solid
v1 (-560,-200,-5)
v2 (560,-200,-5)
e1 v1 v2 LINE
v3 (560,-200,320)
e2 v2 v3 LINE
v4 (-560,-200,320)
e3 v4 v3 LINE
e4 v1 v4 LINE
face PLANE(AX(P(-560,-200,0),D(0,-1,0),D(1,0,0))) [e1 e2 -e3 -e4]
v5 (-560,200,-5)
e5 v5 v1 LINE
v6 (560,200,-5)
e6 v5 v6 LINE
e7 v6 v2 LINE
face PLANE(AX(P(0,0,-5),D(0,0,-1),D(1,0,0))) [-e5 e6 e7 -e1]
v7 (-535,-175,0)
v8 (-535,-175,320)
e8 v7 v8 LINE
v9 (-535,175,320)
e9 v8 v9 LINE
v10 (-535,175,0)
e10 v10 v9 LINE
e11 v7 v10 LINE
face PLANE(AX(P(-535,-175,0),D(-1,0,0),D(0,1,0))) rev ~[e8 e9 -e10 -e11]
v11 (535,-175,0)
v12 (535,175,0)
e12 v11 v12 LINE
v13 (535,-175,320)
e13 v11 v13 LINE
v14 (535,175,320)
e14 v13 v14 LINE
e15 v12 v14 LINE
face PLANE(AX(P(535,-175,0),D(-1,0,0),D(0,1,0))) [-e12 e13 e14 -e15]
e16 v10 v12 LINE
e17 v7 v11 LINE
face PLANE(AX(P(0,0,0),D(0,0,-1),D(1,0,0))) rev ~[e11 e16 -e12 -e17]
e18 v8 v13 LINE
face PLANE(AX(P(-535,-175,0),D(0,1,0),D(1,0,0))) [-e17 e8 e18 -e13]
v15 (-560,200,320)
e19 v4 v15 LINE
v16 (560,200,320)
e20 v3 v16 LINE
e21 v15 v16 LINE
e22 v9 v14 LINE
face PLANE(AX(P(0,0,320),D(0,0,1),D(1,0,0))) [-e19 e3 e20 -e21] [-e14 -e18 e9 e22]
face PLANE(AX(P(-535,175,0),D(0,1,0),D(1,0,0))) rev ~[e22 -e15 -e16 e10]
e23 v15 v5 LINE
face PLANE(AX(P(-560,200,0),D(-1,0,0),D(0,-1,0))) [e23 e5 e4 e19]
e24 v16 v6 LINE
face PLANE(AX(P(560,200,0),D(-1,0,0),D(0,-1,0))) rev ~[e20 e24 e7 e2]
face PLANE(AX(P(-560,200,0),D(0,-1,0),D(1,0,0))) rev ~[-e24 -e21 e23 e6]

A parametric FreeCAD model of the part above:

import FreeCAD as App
import Part
import Sketcher

V = App.Vector
Q = App.Units.Quantity


def add_polygon(sketch, points):
    """Adds a closed chain of lines whose ends are joined by coincident constraints."""
    first, n = sketch.GeometryCount, len(points)
    for a, b in zip(points, points[1:] + points[:1]):
        sketch.addGeometry(Part.LineSegment(App.Vector(*a, 0), App.Vector(*b, 0)), False)
    for i in range(n):
        sketch.addConstraint(Sketcher.Constraint("Coincident", first + i, 2, first + (i + 1) % n, 1))

doc = App.newDocument("Part")
body = doc.addObject("PartDesign::Body", "Body")

sketch1 = doc.addObject("Sketcher::SketchObject", "Sketch")
body.addObject(sketch1)
sketch1.AttachmentSupport = (doc.XY_Plane, [""])
sketch1.MapMode = "FlatFace"
add_polygon(sketch1, [(-560, 200), (-560, -200), (560, -200), (560, 200)])
add_polygon(sketch1, [(535, -175), (-535, -175), (-535, 175), (535, 175)])
sketch1.addConstraint([
    Sketcher.Constraint("Vertical", 0),
    Sketcher.Constraint("Horizontal", 1),
    Sketcher.Constraint("Vertical", 2),
    Sketcher.Constraint("Horizontal", 3),
    Sketcher.Constraint("Horizontal", 4),
    Sketcher.Constraint("Vertical", 5),
    Sketcher.Constraint("Horizontal", 6),
    Sketcher.Constraint("Vertical", 7),
    Sketcher.Constraint("Symmetric", 0, 2, 2, 2, -1, 1),
    Sketcher.Constraint("Symmetric", 4, 2, 6, 2, -1, 1),
    Sketcher.Constraint("DistanceX", 1, 1, 1, 2, Q("1120 mm")),
    Sketcher.Constraint("DistanceX", 4, 2, 4, 1, Q("1070 mm")),
    Sketcher.Constraint("DistanceY", 0, 2, 0, 1, Q("400 mm")),
    Sketcher.Constraint("DistanceY", 5, 1, 5, 2, Q("350 mm")),
])
pad1 = doc.addObject("PartDesign::Pad", "Pad")
body.addObject(pad1)
pad1.Profile = sketch1
pad1.Length = 320

sketch2 = doc.addObject("Sketcher::SketchObject", "Sketch001")
body.addObject(sketch2)
sketch2.AttachmentSupport = (doc.XY_Plane, [""])
sketch2.MapMode = "FlatFace"
add_polygon(sketch2, [(-560, -200), (-560, 200), (560, 200), (560, -200)])
sketch2.addConstraint([
    Sketcher.Constraint("Vertical", 0),
    Sketcher.Constraint("Horizontal", 1),
    Sketcher.Constraint("Vertical", 2),
    Sketcher.Constraint("Horizontal", 3),
    Sketcher.Constraint("Symmetric", 0, 2, 2, 2, -1, 1),
    Sketcher.Constraint("DistanceX", 1, 1, 1, 2, Q("1120 mm")),
    Sketcher.Constraint("DistanceY", 0, 1, 0, 2, Q("400 mm")),
])
pad2 = doc.addObject("PartDesign::Pad", "Pad001")
body.addObject(pad2)
pad2.Profile = sketch2
pad2.Length = 5
pad2.Reversed = True

doc.recompute()
